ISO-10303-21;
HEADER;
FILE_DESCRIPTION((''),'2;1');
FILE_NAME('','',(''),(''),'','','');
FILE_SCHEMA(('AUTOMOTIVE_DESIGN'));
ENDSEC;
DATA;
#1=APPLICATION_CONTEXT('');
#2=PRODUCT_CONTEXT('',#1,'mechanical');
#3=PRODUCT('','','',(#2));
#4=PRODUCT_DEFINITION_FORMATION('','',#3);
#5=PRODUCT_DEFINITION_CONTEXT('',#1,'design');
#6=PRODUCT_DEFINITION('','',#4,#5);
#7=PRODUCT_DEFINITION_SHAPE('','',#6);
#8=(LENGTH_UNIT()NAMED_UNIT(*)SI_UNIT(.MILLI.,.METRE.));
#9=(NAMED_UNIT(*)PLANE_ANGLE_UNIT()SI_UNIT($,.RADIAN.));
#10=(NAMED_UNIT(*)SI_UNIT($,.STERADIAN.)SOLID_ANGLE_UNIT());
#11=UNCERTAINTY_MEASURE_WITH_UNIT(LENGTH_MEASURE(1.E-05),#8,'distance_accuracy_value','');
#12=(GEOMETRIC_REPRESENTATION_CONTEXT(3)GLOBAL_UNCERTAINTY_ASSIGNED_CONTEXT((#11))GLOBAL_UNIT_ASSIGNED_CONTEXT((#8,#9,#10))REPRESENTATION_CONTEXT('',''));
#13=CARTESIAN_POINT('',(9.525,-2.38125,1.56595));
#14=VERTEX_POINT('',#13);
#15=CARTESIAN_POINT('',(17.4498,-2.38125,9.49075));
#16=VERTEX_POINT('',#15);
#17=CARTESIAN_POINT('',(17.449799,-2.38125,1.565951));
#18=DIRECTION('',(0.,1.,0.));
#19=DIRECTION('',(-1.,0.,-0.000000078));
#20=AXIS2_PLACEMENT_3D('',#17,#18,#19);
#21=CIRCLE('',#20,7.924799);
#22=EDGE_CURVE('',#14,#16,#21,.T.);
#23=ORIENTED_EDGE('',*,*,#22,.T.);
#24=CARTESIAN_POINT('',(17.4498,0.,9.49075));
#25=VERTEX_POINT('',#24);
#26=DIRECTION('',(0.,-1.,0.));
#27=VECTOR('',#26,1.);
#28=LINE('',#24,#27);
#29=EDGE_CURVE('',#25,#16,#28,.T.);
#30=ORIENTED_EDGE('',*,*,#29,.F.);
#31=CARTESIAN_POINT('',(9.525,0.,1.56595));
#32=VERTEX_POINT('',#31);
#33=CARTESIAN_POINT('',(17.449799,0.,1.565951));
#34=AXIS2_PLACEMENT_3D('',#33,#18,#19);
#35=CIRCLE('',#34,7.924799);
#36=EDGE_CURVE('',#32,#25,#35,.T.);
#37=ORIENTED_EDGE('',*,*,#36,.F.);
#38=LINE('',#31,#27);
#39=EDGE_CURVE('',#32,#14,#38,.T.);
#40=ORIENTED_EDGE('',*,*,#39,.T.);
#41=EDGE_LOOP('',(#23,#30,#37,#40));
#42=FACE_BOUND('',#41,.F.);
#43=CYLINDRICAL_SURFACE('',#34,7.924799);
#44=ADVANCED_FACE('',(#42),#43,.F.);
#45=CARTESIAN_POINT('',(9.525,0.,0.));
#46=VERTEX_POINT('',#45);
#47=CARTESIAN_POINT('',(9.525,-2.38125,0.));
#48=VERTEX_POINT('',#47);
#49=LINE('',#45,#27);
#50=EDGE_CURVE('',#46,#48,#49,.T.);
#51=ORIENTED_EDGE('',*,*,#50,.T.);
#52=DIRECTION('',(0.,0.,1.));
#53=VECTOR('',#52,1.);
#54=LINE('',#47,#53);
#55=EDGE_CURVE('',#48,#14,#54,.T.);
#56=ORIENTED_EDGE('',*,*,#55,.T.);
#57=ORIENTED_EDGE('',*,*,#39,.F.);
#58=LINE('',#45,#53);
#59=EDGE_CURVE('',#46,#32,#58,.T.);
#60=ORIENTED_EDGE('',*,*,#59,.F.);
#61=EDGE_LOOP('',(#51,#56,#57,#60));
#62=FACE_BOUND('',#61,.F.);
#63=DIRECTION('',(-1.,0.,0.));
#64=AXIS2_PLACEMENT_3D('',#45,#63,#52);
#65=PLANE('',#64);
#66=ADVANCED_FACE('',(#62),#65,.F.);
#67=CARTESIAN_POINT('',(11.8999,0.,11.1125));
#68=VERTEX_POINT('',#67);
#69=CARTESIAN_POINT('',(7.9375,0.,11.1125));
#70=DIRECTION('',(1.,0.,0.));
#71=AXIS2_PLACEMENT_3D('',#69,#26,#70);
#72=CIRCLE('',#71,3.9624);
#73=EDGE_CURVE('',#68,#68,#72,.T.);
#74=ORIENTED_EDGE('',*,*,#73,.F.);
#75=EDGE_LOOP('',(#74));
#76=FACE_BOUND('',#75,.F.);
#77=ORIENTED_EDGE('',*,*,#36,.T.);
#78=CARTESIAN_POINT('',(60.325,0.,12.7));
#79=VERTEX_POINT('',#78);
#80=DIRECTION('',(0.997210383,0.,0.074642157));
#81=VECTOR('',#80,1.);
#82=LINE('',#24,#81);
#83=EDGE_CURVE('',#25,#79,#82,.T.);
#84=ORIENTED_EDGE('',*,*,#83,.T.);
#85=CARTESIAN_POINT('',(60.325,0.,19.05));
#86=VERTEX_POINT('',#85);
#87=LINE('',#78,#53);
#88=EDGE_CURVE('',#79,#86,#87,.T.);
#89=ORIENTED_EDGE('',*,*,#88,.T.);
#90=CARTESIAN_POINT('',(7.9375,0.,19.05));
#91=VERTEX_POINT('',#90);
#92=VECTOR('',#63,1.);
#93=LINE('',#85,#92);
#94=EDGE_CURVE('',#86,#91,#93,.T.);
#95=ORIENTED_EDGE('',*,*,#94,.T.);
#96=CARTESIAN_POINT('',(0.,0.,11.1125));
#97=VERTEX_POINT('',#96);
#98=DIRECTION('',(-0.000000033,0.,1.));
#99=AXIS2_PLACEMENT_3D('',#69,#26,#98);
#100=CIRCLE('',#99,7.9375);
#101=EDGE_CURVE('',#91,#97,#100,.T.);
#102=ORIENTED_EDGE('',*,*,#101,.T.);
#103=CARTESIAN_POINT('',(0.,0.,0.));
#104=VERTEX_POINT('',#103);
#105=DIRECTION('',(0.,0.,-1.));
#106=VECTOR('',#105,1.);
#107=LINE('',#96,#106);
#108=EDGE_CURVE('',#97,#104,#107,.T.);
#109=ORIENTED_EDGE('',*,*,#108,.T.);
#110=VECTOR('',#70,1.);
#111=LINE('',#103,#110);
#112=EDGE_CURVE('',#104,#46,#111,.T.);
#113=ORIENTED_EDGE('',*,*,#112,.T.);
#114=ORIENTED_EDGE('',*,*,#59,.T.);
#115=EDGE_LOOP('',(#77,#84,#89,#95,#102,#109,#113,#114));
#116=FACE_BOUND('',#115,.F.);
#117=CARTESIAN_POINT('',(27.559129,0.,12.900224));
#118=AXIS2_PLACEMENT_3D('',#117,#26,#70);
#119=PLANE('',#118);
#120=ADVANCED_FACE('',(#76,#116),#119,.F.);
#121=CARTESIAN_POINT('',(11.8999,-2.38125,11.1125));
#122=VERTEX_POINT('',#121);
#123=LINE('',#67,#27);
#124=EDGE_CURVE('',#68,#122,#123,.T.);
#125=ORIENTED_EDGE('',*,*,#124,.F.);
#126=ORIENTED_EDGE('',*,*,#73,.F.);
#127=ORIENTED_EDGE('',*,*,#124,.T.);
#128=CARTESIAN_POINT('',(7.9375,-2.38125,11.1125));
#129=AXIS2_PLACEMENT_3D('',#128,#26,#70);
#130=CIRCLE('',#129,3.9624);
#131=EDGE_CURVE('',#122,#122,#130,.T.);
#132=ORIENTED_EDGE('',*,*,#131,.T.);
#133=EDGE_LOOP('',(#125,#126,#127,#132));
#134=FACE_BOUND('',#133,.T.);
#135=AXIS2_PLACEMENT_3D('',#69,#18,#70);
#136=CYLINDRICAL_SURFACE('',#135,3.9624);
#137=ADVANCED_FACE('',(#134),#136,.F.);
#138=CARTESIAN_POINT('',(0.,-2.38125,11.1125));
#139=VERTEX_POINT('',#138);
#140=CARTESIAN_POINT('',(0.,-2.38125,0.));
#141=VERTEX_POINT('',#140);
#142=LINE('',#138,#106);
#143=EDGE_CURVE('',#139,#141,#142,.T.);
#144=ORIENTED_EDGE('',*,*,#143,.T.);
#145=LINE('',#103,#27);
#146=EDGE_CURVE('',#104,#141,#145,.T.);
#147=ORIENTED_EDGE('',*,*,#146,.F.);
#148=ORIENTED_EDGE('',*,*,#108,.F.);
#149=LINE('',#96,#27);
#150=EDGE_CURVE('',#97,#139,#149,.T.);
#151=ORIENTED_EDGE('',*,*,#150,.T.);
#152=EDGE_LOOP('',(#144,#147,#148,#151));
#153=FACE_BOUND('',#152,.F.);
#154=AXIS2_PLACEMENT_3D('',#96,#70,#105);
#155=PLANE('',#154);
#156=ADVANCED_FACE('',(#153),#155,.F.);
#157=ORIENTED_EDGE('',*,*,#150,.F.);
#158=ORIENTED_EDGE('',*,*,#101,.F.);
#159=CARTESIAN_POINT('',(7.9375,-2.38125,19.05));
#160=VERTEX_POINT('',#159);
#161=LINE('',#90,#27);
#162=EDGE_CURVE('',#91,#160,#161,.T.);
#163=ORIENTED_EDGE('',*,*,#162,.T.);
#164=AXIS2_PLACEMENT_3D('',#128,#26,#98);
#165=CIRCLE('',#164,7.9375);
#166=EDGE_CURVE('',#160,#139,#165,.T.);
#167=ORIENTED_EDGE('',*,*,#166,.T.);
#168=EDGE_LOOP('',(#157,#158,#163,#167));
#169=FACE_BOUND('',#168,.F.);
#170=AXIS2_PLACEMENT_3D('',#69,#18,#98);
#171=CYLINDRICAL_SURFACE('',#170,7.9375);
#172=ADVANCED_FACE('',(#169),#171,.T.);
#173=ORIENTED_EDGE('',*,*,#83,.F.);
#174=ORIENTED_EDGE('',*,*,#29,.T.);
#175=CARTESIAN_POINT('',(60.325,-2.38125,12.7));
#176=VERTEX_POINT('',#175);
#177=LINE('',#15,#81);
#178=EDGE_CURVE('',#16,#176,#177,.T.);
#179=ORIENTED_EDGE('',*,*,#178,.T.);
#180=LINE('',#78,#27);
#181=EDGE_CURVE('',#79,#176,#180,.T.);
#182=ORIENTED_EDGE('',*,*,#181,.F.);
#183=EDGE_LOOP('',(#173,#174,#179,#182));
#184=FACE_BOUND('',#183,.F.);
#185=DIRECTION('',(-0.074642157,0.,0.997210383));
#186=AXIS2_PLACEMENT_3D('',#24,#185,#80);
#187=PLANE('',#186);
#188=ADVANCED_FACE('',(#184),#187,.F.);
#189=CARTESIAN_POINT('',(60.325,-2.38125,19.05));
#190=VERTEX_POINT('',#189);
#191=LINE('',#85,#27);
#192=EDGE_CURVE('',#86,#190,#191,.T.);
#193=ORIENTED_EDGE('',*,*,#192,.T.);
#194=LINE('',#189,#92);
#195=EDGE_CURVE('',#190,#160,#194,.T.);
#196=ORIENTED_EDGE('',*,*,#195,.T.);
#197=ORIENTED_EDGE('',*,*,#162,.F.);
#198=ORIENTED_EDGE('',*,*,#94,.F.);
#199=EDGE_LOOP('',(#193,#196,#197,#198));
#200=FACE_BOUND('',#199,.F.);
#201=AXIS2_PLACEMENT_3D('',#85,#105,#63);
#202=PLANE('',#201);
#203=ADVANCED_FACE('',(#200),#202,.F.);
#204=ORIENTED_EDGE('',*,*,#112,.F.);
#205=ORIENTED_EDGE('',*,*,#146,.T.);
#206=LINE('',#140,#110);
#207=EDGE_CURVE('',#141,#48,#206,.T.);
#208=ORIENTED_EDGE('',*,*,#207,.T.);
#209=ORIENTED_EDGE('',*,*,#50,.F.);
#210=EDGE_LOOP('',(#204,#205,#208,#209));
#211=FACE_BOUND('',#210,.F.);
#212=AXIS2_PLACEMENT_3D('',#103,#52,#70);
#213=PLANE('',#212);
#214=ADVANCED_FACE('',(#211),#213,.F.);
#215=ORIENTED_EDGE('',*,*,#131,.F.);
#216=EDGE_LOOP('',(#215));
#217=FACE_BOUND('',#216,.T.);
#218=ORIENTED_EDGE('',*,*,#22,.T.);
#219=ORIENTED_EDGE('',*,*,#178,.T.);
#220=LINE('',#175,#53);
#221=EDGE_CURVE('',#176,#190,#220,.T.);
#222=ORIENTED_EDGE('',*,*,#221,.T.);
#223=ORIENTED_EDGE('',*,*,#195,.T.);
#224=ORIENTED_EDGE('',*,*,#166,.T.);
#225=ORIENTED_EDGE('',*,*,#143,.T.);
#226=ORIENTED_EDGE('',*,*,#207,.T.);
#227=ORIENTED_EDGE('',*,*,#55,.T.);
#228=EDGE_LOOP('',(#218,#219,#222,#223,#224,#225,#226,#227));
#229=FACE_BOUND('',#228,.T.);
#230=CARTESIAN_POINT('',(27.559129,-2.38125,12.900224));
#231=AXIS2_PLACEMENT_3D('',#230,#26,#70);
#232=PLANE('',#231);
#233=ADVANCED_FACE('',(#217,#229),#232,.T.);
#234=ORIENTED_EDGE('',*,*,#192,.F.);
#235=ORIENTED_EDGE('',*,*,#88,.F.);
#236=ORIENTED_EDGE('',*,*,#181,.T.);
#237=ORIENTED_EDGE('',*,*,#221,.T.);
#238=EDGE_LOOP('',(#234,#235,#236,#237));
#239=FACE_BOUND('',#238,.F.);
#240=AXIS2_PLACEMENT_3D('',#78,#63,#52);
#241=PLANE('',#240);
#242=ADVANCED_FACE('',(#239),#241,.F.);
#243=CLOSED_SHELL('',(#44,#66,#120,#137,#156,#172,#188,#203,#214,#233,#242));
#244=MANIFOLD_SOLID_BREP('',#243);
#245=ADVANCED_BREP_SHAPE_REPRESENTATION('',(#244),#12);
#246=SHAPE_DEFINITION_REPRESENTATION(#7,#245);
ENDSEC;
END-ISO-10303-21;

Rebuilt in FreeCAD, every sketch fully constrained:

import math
import FreeCAD as App
import Part
import Sketcher

V = App.Vector
Q = App.Units.Quantity

doc = App.newDocument("Part")
body = doc.addObject("PartDesign::Body", "Body")

sketch1 = body.newObject("Sketcher::SketchObject", "Sketch")
sketch1.AttachmentSupport = (doc.getObject("XZ_Plane"), [""])
sketch1.MapMode = "FlatFace"
sketch1.addGeometry([
    Part.LineSegment(V(0, 0, 0), V(9.5, 0, 0)),
    Part.LineSegment(V(9.5, 0, 0), V(9.5, 1.6, 0)),
    Part.ArcOfCircle(Part.Circle(V(17.4, 1.6, 0), V(0, 0, 1), 7.9), math.radians(90), math.radians(180)),
    Part.LineSegment(V(17.4, 9.5, 0), V(60.3, 12.7, 0)),
    Part.LineSegment(V(60.3, 12.7, 0), V(60.3, 19.1, 0)),
    Part.LineSegment(V(60.3, 19.1, 0), V(7.9, 19.1, 0)),
    Part.ArcOfCircle(Part.Circle(V(7.9, 11.1, 0), V(0, 0, 1), 7.9), math.radians(90), math.radians(180)),
    Part.LineSegment(V(0, 11.1, 0), V(0, 0, 0)),
    Part.Circle(V(7.9, 11.1, 0), V(0, 0, 1), 4),
], False)
sketch1.addConstraint([
    Sketcher.Constraint("Coincident", 0, 2, 1, 1),
    Sketcher.Constraint("Tangent", 1, 2, 2, 2),
    Sketcher.Constraint("Coincident", 2, 1, 3, 1),
    Sketcher.Constraint("Coincident", 3, 2, 4, 1),
    Sketcher.Constraint("Coincident", 4, 2, 5, 1),
    Sketcher.Constraint("Tangent", 5, 2, 6, 1),
    Sketcher.Constraint("Tangent", 6, 2, 7, 1),
    Sketcher.Constraint("Coincident", 7, 2, 0, 1),
    Sketcher.Constraint("Horizontal", 0),
    Sketcher.Constraint("Vertical", 1),
    Sketcher.Constraint("Vertical", 4),
    Sketcher.Constraint("Horizontal", 5),
    Sketcher.Constraint("Vertical", 7),
    Sketcher.Constraint("Coincident", 7, 2, -1, 1),
    Sketcher.Constraint("Coincident", 8, 3, 6, 3),
    Sketcher.Constraint("Diameter", 8, Q("0.312 in")),
    Sketcher.Constraint("Radius", 2, Q("0.312 in")),
    Sketcher.Constraint("Radius", 6, Q("0.3125 in")),
    Sketcher.Constraint("DistanceX", 1, 2, 3, 2, Q("2 in")),
    Sketcher.Constraint("DistanceY", 4, 1, 4, 2, Q("0.25 in")),
    Sketcher.Constraint("DistanceY", -1, 1, 3, 2, Q("0.5 in")),
    Sketcher.Constraint("DistanceX", 0, 1, 0, 2, Q("0.375 in")),
    Sketcher.Constraint("DistanceX", -1, 1, 2, 1, Q("0.687 in")),
    Sketcher.Constraint("DistanceY", 1, 1, 1, 2, 1.56595),
])
pad1 = body.newObject("PartDesign::Pad", "Pad")
pad1.Profile = sketch1
pad1.Length = Q("0.09375 in")

doc.recompute()
